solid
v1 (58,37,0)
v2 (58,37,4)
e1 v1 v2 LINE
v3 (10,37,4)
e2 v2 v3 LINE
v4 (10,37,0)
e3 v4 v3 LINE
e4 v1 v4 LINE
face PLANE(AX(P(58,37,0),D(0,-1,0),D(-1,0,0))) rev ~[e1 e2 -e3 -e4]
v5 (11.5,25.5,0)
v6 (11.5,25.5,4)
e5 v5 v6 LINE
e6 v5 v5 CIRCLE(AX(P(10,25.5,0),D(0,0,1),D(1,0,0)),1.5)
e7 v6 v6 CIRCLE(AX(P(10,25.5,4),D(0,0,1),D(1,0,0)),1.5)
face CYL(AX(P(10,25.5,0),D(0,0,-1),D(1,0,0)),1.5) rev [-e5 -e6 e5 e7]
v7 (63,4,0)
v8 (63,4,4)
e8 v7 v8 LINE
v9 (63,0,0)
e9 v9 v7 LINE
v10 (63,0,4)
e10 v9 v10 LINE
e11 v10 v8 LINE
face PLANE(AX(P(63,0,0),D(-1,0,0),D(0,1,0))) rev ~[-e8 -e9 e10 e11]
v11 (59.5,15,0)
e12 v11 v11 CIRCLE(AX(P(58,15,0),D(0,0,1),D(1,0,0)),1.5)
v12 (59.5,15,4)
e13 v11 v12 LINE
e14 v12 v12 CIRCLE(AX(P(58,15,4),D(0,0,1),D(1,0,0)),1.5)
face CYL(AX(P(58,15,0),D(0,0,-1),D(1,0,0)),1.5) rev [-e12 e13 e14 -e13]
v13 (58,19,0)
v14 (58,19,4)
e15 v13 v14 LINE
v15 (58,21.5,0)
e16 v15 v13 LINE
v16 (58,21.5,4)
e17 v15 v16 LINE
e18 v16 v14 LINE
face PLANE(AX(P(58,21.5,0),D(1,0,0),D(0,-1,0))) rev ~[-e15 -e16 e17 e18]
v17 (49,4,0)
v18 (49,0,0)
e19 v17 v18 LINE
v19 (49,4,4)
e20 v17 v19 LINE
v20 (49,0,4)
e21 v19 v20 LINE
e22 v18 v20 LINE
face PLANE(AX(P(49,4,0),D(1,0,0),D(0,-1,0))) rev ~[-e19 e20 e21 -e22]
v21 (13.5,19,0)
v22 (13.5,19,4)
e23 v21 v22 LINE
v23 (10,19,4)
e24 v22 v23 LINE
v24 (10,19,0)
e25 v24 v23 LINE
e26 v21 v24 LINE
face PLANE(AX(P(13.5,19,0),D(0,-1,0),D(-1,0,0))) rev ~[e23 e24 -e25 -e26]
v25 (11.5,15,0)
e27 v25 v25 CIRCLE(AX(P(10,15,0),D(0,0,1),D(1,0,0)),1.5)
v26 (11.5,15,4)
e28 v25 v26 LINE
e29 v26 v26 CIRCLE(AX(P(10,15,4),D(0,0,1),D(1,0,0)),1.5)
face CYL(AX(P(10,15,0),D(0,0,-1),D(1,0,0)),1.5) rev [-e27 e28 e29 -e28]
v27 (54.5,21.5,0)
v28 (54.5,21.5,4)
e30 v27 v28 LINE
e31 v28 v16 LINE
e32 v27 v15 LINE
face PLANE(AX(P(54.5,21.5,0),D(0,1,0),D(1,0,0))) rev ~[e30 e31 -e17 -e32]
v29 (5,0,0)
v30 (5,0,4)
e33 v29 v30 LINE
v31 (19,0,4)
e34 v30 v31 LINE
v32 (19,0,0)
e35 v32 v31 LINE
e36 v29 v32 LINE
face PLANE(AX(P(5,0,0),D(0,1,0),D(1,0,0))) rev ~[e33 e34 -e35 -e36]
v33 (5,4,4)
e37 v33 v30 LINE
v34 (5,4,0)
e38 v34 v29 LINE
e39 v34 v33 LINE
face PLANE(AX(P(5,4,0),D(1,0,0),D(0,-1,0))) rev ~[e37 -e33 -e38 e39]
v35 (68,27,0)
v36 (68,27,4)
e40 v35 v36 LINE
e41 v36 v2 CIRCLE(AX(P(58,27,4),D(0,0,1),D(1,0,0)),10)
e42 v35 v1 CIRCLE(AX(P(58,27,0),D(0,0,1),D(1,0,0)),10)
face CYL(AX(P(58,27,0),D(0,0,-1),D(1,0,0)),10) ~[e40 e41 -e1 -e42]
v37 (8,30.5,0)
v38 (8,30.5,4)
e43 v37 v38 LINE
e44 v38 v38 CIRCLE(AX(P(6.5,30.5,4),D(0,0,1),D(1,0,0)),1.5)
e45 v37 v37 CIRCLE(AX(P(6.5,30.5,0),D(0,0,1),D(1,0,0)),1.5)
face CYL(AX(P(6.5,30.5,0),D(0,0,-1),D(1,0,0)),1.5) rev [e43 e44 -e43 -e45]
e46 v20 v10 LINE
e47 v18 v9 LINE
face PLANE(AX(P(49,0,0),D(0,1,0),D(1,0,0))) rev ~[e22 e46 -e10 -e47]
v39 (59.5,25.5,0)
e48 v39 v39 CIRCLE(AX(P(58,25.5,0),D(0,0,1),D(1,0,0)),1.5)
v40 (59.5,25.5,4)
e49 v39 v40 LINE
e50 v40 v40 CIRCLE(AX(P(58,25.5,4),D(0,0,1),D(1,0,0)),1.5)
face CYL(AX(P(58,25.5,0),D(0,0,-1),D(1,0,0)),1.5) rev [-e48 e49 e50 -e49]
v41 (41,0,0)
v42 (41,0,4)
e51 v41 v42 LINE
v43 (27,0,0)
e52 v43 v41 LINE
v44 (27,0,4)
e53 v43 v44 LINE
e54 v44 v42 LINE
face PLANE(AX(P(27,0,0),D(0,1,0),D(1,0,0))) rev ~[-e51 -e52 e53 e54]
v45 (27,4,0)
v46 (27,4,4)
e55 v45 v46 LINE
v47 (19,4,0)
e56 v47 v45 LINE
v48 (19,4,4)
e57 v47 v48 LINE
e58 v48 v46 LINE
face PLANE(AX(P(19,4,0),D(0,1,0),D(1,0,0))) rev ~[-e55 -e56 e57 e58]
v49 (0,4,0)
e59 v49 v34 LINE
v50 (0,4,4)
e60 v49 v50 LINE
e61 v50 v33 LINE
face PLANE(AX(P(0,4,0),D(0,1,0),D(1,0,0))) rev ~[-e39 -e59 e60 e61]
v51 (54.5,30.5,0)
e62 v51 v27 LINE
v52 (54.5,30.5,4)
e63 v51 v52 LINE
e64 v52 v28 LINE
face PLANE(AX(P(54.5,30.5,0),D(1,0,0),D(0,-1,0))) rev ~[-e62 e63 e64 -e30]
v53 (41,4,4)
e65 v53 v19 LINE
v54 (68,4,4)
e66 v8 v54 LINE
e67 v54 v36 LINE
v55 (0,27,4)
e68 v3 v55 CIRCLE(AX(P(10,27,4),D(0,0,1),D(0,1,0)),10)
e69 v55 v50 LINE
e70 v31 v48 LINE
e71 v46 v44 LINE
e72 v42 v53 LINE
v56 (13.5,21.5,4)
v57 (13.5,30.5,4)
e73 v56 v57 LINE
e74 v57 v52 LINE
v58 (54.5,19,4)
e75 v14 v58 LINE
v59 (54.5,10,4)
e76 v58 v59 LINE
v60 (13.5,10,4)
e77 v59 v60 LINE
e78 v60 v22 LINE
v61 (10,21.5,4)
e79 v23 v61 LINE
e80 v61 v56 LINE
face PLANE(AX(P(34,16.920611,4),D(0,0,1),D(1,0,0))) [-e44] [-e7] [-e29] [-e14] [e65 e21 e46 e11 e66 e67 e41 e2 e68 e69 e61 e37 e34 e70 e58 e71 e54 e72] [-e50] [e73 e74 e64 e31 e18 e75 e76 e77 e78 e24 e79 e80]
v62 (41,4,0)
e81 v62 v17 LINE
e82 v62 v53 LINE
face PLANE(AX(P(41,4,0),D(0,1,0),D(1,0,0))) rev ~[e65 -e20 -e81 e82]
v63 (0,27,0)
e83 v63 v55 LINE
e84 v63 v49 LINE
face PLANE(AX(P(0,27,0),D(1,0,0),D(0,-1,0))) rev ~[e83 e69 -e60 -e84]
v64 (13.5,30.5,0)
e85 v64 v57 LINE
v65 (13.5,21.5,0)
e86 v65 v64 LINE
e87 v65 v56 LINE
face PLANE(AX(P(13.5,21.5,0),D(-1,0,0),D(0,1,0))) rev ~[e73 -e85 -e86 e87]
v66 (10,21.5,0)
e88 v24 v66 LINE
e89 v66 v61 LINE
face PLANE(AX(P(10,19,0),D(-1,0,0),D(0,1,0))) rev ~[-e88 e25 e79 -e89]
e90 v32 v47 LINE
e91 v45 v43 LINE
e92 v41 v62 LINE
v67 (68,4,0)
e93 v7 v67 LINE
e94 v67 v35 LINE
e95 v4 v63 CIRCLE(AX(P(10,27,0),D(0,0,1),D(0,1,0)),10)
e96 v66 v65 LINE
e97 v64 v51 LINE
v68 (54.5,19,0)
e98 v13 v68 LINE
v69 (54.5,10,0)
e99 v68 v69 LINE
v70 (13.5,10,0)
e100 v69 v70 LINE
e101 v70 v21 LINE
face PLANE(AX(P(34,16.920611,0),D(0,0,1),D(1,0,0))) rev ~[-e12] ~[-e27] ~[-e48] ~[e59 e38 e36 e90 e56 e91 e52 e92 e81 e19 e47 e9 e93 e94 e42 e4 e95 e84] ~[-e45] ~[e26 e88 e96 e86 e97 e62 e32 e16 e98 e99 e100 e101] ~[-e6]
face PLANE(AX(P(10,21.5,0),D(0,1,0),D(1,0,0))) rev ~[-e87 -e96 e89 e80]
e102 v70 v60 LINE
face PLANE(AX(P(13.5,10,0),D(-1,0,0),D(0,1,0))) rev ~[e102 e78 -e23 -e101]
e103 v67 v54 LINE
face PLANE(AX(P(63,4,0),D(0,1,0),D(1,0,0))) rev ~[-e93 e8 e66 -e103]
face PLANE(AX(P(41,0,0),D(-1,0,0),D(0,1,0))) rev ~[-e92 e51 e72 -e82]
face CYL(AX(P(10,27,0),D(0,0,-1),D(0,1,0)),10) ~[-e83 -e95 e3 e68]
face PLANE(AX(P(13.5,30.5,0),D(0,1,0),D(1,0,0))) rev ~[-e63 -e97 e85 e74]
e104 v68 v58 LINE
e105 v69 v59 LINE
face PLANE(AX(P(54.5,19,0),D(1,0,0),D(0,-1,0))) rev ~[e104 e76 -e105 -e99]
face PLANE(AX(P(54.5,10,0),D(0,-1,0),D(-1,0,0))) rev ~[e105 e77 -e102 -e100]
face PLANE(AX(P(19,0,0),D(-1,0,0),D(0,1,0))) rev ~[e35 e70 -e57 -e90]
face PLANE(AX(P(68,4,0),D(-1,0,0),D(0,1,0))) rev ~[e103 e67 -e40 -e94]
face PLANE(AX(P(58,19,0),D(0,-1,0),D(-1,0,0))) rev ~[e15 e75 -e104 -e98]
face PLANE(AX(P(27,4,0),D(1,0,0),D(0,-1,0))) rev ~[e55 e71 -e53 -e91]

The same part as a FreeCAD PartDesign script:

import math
import FreeCAD as App
import Part
import Sketcher
Q = App.Units.Quantity


def add_polygon(sketch, points):
    """Adds a closed chain of lines whose ends are joined by coincident constraints."""
    first, n = sketch.GeometryCount, len(points)
    for a, b in zip(points, points[1:] + points[:1]):
        sketch.addGeometry(Part.LineSegment(App.Vector(*a, 0), App.Vector(*b, 0)), False)
    for i in range(n):
        sketch.addConstraint(Sketcher.Constraint("Coincident", first + i, 2, first + (i + 1) % n, 1))

doc = App.newDocument("Part")
body = doc.addObject("PartDesign::Body", "Body")

# Sketch on XY plane
sketch1 = doc.addObject("Sketcher::SketchObject", "Sketch")
body.addObject(sketch1)
sketch1.AttachmentSupport = (doc.XY_Plane, [""])
sketch1.MapMode = "FlatFace"
sketch1.addGeometry(Part.LineSegment(App.Vector(49, 4, 0), App.Vector(49, 0, 0)), False)  # 0
sketch1.addGeometry(Part.LineSegment(App.Vector(49, 0, 0), App.Vector(63, 0, 0)), False)  # 1
sketch1.addGeometry(Part.LineSegment(App.Vector(63, 0, 0), App.Vector(63, 4, 0)), False)  # 2
sketch1.addGeometry(Part.LineSegment(App.Vector(63, 4, 0), App.Vector(68, 4, 0)), False)  # 3
sketch1.addGeometry(Part.LineSegment(App.Vector(68, 4, 0), App.Vector(68, 27, 0)), False)  # 4
sketch1.addGeometry(Part.ArcOfCircle(Part.Circle(App.Vector(58, 27, 0), App.Vector(0, 0, 1), 10), math.radians(0), math.radians(90)), False)  # 5
sketch1.addGeometry(Part.LineSegment(App.Vector(58, 37, 0), App.Vector(10, 37, 0)), False)  # 6
sketch1.addGeometry(Part.ArcOfCircle(Part.Circle(App.Vector(10, 27, 0), App.Vector(0, 0, 1), 10), math.radians(90), math.radians(180)), False)  # 7
sketch1.addGeometry(Part.LineSegment(App.Vector(0, 27, 0), App.Vector(0, 4, 0)), False)  # 8
sketch1.addGeometry(Part.LineSegment(App.Vector(0, 4, 0), App.Vector(5, 4, 0)), False)  # 9
sketch1.addGeometry(Part.LineSegment(App.Vector(5, 4, 0), App.Vector(5, 0, 0)), False)  # 10
sketch1.addGeometry(Part.LineSegment(App.Vector(5, 0, 0), App.Vector(19, 0, 0)), False)  # 11
sketch1.addGeometry(Part.LineSegment(App.Vector(19, 0, 0), App.Vector(19, 4, 0)), False)  # 12
sketch1.addGeometry(Part.LineSegment(App.Vector(19, 4, 0), App.Vector(27, 4, 0)), False)  # 13
sketch1.addGeometry(Part.LineSegment(App.Vector(27, 4, 0), App.Vector(27, 0, 0)), False)  # 14
sketch1.addGeometry(Part.LineSegment(App.Vector(27, 0, 0), App.Vector(41, 0, 0)), False)  # 15
sketch1.addGeometry(Part.LineSegment(App.Vector(41, 0, 0), App.Vector(41, 4, 0)), False)  # 16
sketch1.addGeometry(Part.LineSegment(App.Vector(41, 4, 0), App.Vector(49, 4, 0)), False)  # 17
sketch1.addGeometry(Part.Circle(App.Vector(10, 15, 0), App.Vector(0, 0, 1), 1.5), False)  # 18
sketch1.addGeometry(Part.Circle(App.Vector(58, 15, 0), App.Vector(0, 0, 1), 1.5), False)  # 19
add_polygon(sketch1, [(13.5, 30.5), (54.5, 30.5), (54.5, 21.5), (58, 21.5), (58, 19), (54.5, 19), (54.5, 10), (13.5, 10), (13.5, 19), (10, 19), (10, 21.5), (13.5, 21.5)])  # lines 20-31
sketch1.addGeometry(Part.Circle(App.Vector(10, 25.5, 0), App.Vector(0, 0, 1), 1.5), False)  # 32
sketch1.addGeometry(Part.Circle(App.Vector(6.5, 30.5, 0), App.Vector(0, 0, 1), 1.5), False)  # 33
sketch1.addGeometry(Part.Circle(App.Vector(58, 25.5, 0), App.Vector(0, 0, 1), 1.5), False)  # 34
sketch1.addConstraint([
    Sketcher.Constraint("Coincident", 0, 2, 1, 1),
    Sketcher.Constraint("Coincident", 1, 2, 2, 1),
    Sketcher.Constraint("Coincident", 2, 2, 3, 1),
    Sketcher.Constraint("Coincident", 3, 2, 4, 1),
    Sketcher.Constraint("Tangent", 4, 2, 5, 1),
    Sketcher.Constraint("Tangent", 5, 2, 6, 1),
    Sketcher.Constraint("Tangent", 6, 2, 7, 1),
    Sketcher.Constraint("Tangent", 7, 2, 8, 1),
    Sketcher.Constraint("Coincident", 8, 2, 9, 1),
    Sketcher.Constraint("Coincident", 9, 2, 10, 1),
    Sketcher.Constraint("Coincident", 10, 2, 11, 1),
    Sketcher.Constraint("Coincident", 11, 2, 12, 1),
    Sketcher.Constraint("Coincident", 12, 2, 13, 1),
    Sketcher.Constraint("Coincident", 13, 2, 14, 1),
    Sketcher.Constraint("Coincident", 14, 2, 15, 1),
    Sketcher.Constraint("Coincident", 15, 2, 16, 1),
    Sketcher.Constraint("Coincident", 16, 2, 17, 1),
    Sketcher.Constraint("Coincident", 17, 2, 0, 1),
    Sketcher.Constraint("Vertical", 0),
    Sketcher.Constraint("Horizontal", 1),
    Sketcher.Constraint("Vertical", 2),
    Sketcher.Constraint("Horizontal", 3),
    Sketcher.Constraint("Vertical", 4),
    Sketcher.Constraint("Horizontal", 6),
    Sketcher.Constraint("Vertical", 8),
    Sketcher.Constraint("Horizontal", 9),
    Sketcher.Constraint("Vertical", 10),
    Sketcher.Constraint("Horizontal", 11),
    Sketcher.Constraint("Vertical", 12),
    Sketcher.Constraint("Horizontal", 13),
    Sketcher.Constraint("Vertical", 14),
    Sketcher.Constraint("Horizontal", 15),
    Sketcher.Constraint("Vertical", 16),
    Sketcher.Constraint("Horizontal", 17),
    Sketcher.Constraint("Horizontal", 20),
    Sketcher.Constraint("Vertical", 21),
    Sketcher.Constraint("Horizontal", 22),
    Sketcher.Constraint("Vertical", 23),
    Sketcher.Constraint("Horizontal", 24),
    Sketcher.Constraint("Vertical", 25),
    Sketcher.Constraint("Horizontal", 26),
    Sketcher.Constraint("Vertical", 27),
    Sketcher.Constraint("Horizontal", 28),
    Sketcher.Constraint("Vertical", 29),
    Sketcher.Constraint("Horizontal", 30),
    Sketcher.Constraint("Vertical", 31),
    Sketcher.Constraint("Equal", 5, 7),
    Sketcher.Constraint("Equal", 18, 19),
    Sketcher.Constraint("Equal", 19, 32),
    Sketcher.Constraint("Equal", 32, 33),
    Sketcher.Constraint("Equal", 33, 34),
    Sketcher.Constraint("PointOnObject", 0, 2, -1),
    Sketcher.Constraint("PointOnObject", 7, 2, -2),
    Sketcher.Constraint("PointOnObject", 10, 2, -1),
    Sketcher.Constraint("PointOnObject", 14, 2, -1),
    Sketcher.Constraint("Horizontal", 18, 3, 19, 3),
    Sketcher.Constraint("Horizontal", 32, 3, 34, 3),
    Sketcher.Constraint("Horizontal", 3, 2, 8, 2),
    Sketcher.Constraint("Horizontal", 9, 2, 12, 2),
    Sketcher.Constraint("Horizontal", 13, 2, 16, 2),
    Sketcher.Constraint("Horizontal", 33, 3, 20, 2),
    Sketcher.Constraint("Horizontal", 24, 2, 27, 2),
    Sketcher.Constraint("Horizontal", 22, 2, 29, 2),
    Sketcher.Constraint("Vertical", 7, 3, 18, 3),
    Sketcher.Constraint("Vertical", 5, 3, 19, 3),
    Sketcher.Constraint("Vertical", 18, 3, 32, 3),
    Sketcher.Constraint("Vertical", 19, 3, 34, 3),
    Sketcher.Constraint("Vertical", 5, 2, 22, 2),
    Sketcher.Constraint("Vertical", 21, 2, 24, 2),
    Sketcher.Constraint("Vertical", 6, 2, 28, 2),
    Sketcher.Constraint("Vertical", 27, 2, 30, 2),
    Sketcher.Constraint("Equal", 3, 9),
    Sketcher.Constraint("Equal", 1, 11),
    Sketcher.Constraint("Equal", 11, 15),
    Sketcher.Constraint("Equal", 13, 17),
    Sketcher.Constraint("Equal", 24, 28),
    Sketcher.Constraint("Equal", 21, 25),
    Sketcher.Constraint("Diameter", 18, Q("3 mm")),
    Sketcher.Constraint("Radius", 5, Q("10 mm")),
    Sketcher.Constraint("DistanceX", 1, 1, 1, 2, Q("14 mm")),
    Sketcher.Constraint("DistanceX", 3, 1, 3, 2, Q("5 mm")),
    Sketcher.Constraint("DistanceX", 6, 2, 6, 1, Q("48 mm")),
    Sketcher.Constraint("DistanceX", 20, 1, 20, 2, Q("41 mm")),
    Sketcher.Constraint("DistanceY", 0, 2, 0, 1, Q("4 mm")),
    Sketcher.Constraint("DistanceY", 4, 1, 4, 2, Q("23 mm")),
    Sketcher.Constraint("DistanceY", 21, 2, 21, 1, Q("9 mm")),
    Sketcher.Constraint("DistanceY", 23, 2, 23, 1, Q("2.5 mm")),
    Sketcher.Constraint("DistanceY", -1, 1, 18, 3, Q("15 mm")),
    Sketcher.Constraint("DistanceY", -1, 1, 23, 2, Q("19 mm")),
    Sketcher.Constraint("DistanceY", 32, 3, 33, 3, Q("5 mm")),
    Sketcher.Constraint("DistanceX", 33, 3, 27, 2, Q("7 mm")),
])
pad1 = doc.addObject("PartDesign::Pad", "Pad")
body.addObject(pad1)
pad1.Profile = sketch1
pad1.Length = 4

doc.recompute()
